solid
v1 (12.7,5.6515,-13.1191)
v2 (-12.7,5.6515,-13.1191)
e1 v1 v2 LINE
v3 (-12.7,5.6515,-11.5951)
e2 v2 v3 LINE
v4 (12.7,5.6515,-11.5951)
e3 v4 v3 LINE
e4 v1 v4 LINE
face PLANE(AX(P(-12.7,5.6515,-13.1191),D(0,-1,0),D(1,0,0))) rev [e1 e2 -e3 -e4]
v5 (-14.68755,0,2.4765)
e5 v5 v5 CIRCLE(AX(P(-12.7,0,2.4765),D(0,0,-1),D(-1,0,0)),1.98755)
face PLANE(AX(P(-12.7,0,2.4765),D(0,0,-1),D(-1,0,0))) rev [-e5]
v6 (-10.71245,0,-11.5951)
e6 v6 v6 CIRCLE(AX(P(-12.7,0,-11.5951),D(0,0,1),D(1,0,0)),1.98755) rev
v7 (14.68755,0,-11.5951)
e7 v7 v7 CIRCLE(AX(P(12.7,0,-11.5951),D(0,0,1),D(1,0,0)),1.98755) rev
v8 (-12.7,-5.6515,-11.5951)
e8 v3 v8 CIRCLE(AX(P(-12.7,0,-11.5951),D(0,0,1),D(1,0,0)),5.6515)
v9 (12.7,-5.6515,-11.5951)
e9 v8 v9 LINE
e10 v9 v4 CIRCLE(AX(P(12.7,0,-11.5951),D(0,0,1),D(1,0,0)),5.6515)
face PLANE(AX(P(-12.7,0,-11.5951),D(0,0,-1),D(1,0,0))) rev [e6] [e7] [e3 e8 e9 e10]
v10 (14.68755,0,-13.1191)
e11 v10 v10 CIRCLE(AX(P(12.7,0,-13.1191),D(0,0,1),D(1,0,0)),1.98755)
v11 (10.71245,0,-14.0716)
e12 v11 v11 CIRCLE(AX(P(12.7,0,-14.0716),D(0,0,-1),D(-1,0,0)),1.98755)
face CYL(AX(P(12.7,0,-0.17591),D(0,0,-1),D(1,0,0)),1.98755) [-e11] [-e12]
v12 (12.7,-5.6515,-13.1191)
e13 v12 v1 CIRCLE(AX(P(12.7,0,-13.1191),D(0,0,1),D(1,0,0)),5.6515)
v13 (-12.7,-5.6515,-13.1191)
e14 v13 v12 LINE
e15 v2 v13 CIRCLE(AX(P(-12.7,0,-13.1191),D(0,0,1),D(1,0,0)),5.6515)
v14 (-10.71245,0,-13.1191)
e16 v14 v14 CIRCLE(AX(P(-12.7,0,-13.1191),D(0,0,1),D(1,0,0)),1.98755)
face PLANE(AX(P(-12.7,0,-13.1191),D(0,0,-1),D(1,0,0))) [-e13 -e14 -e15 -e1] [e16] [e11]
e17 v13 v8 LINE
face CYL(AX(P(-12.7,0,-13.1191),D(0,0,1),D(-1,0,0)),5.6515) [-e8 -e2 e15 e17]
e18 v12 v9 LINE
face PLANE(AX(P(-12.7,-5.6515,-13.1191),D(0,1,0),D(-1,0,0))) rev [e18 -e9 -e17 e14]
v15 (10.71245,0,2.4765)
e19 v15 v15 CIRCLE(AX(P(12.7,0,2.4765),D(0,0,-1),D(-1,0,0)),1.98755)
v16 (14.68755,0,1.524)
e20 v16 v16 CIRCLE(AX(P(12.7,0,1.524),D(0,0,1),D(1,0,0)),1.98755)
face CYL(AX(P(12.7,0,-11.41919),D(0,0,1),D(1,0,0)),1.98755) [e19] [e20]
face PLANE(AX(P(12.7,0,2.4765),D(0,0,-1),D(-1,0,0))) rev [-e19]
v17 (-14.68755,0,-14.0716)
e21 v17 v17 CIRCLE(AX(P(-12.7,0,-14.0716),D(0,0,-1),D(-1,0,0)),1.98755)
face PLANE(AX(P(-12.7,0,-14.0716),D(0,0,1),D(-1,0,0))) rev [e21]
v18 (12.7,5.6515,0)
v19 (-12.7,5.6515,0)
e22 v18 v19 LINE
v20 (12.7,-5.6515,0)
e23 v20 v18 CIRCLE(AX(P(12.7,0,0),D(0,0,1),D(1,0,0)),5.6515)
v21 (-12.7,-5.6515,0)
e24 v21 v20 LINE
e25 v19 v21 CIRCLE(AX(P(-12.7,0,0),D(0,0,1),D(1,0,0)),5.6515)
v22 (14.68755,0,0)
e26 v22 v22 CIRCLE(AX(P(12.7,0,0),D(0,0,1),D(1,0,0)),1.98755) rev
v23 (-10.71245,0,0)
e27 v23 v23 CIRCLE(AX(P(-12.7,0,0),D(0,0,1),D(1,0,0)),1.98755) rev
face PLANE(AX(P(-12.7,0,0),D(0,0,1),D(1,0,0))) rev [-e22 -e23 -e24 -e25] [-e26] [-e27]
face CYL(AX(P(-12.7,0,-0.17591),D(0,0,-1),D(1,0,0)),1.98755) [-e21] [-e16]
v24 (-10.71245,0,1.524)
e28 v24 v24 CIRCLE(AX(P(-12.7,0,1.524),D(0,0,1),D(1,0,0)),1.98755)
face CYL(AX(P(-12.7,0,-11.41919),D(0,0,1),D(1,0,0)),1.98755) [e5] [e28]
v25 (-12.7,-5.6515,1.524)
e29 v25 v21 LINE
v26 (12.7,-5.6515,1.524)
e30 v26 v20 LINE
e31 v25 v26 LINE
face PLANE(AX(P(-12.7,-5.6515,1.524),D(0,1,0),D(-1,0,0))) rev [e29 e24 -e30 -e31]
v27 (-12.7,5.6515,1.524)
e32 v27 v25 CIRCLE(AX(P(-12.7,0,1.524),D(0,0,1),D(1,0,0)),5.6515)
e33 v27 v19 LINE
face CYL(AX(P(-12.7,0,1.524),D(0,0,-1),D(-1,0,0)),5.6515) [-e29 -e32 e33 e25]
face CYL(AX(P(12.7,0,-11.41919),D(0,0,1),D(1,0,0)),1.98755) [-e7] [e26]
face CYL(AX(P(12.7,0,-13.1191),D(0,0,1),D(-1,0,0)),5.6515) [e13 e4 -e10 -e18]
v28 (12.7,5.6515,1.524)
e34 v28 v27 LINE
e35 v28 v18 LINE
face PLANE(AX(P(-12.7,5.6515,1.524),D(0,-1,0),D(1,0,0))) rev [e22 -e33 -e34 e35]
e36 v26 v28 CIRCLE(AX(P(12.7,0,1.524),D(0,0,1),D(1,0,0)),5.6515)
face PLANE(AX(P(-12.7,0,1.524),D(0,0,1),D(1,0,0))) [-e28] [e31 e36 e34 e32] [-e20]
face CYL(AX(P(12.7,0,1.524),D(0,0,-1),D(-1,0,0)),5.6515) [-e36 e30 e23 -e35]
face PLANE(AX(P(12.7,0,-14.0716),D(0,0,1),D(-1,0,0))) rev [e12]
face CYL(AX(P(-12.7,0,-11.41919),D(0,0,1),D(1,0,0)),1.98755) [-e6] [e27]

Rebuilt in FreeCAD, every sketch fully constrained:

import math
import FreeCAD as App
import Part
import Sketcher
from FreeCAD import Vector
Q = App.Units.Quantity

doc = App.newDocument("Part")
body = doc.addObject("PartDesign::Body", "Body")

# Sketch on XY plane
sketch1 = body.newObject("Sketcher::SketchObject", "Sketch")
sketch1.AttachmentSupport = (doc.getObject("XY_Plane"), [""])
sketch1.MapMode = "FlatFace"
sketch1.addGeometry([
    Part.LineSegment(Vector(12.7, 5.6515, 0), Vector(-12.7, 5.6515, 0)),  # 0
    Part.ArcOfCircle(Part.Circle(Vector(-12.7, 0, 0), Vector(0, 0, 1), 5.6515), math.radians(90), math.radians(270)),  # 1
    Part.LineSegment(Vector(-12.7, -5.6515, 0), Vector(12.7, -5.6515, 0)),  # 2
    Part.ArcOfCircle(Part.Circle(Vector(12.7, 0, 0), Vector(0, 0, 1), 5.6515), math.radians(-90), math.radians(90)),  # 3
    Part.Circle(Vector(12.7, 0, 0), Vector(0, 0, 1), 1.98755),  # 4
    Part.Circle(Vector(-12.7, 0, 0), Vector(0, 0, 1), 1.98755),  # 5
], False)
sketch1.addConstraint([
    Sketcher.Constraint("Tangent", 0, 2, 1, 1),
    Sketcher.Constraint("Tangent", 1, 2, 2, 1),
    Sketcher.Constraint("Tangent", 2, 2, 3, 1),
    Sketcher.Constraint("Tangent", 3, 2, 0, 1),
    Sketcher.Constraint("Horizontal", 0),
    Sketcher.Constraint("Horizontal", 2),
    Sketcher.Constraint("Coincident", 4, 3, 3, 3),
    Sketcher.Constraint("Coincident", 5, 3, 1, 3),
    Sketcher.Constraint("Equal", 4, 5),
    Sketcher.Constraint("Symmetric", 1, 3, 3, 3, -1, 1),
    Sketcher.Constraint("DistanceX", 0, 2, 0, 1, Q("1 in")),
    Sketcher.Constraint("Diameter", 4, Q("0.1565 in")),
    Sketcher.Constraint("Radius", 1, Q("0.2225 in")),
])
pad1 = body.newObject("PartDesign::Pad", "Pad")
pad1.Profile = sketch1
pad1.Length = Q("0.06 in")

# Sketch on XY plane
sketch2 = body.newObject("Sketcher::SketchObject", "Sketch001")
sketch2.AttachmentSupport = (doc.getObject("XY_Plane"), [""])
sketch2.MapMode = "FlatFace"
sketch2.AttachmentOffset = App.Placement(Vector(0, 0, 0.0975 * 25.4), App.Rotation())
sketch2.addGeometry([
    Part.Circle(Vector(12.7, 0, 0), Vector(0, 0, 1), 1.98755),
    Part.Circle(Vector(-12.7, 0, 0), Vector(0, 0, 1), 1.98755),
], False)
sketch2.addConstraint([
    Sketcher.Constraint("Equal", 0, 1),
    Sketcher.Constraint("Symmetric", 0, 3, 1, 3, -1, 1),
    Sketcher.Constraint("PointOnObject", 0, 3, -1),
    Sketcher.Constraint("DistanceX", 1, 3, 0, 3, Q("1 in")),
    Sketcher.Constraint("Diameter", 0, Q("0.1565 in")),
])
pad2 = body.newObject("PartDesign::Pad", "Pad001")
pad2.Profile = sketch2
pad2.Length = 8.27405
pad2.Reversed = True
doc.recompute()

datumplane = body.newObject("PartDesign::Plane", "DatumPlane")
datumplane.AttachmentSupport = (doc.getObject("XY_Plane"), [""])
datumplane.MapMode = "FlatFace"
datumplane.AttachmentOffset = App.Placement(Vector(0, 0, -5.79755), App.Rotation())
mirrored = body.newObject("PartDesign::Mirrored", "Mirrored")
mirrored.Originals = [pad1, pad2]
mirrored.MirrorPlane = (datumplane, [""])
body.Tip = mirrored

doc.recompute()
